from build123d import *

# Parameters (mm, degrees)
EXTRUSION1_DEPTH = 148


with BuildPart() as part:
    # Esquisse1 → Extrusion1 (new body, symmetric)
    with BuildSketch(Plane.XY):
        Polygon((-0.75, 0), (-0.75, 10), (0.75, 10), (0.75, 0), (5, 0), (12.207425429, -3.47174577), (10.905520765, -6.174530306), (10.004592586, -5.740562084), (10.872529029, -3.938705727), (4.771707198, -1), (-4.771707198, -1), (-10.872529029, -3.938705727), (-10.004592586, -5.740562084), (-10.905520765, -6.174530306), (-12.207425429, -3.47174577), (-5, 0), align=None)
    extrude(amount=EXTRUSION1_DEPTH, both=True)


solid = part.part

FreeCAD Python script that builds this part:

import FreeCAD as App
import Part
import Sketcher

V = App.Vector


def add_polygon(sketch, points):
    """Adds a closed chain of lines whose ends are joined by coincident constraints."""
    first, n = sketch.GeometryCount, len(points)
    for a, b in zip(points, points[1:] + points[:1]):
        sketch.addGeometry(Part.LineSegment(App.Vector(*a, 0), App.Vector(*b, 0)), False)
    for i in range(n):
        sketch.addConstraint(Sketcher.Constraint("Coincident", first + i, 2, first + (i + 1) % n, 1))

doc = App.newDocument("Part")
body = doc.addObject("PartDesign::Body", "Body")

# Sketch on XY plane
sketch1 = body.newObject("Sketcher::SketchObject", "Sketch")
sketch1.AttachmentSupport = (doc.getObject("XY_Plane"), [""])
sketch1.MapMode = "FlatFace"
add_polygon(sketch1, [(-0.8, 10), (-0.8, 0), (-5, 0), (-12.2, -3.5), (-10.9, -6.2), (-10, -5.7), (-10.9, -3.9), (-4.8, -1), (4.8, -1), (10.9, -3.9), (10, -5.7), (10.9, -6.2), (12.2, -3.5), (5, 0), (0.8, 0), (0.8, 10)])  # lines 0-15
sketch1.addConstraint(Sketcher.Constraint("Vertical", 0))
sketch1.addConstraint(Sketcher.Constraint("Horizontal", 1))
sketch1.addConstraint(Sketcher.Constraint("Horizontal", 7))
sketch1.addConstraint(Sketcher.Constraint("Horizontal", 13))
sketch1.addConstraint(Sketcher.Constraint("Vertical", 14))
sketch1.addConstraint(Sketcher.Constraint("Horizontal", 15))
sketch1.addConstraint(Sketcher.Constraint("Symmetric", 1, 2, 12, 2, -1, 1))
sketch1.addConstraint(Sketcher.Constraint("Symmetric", 5, 2, 8, 2, -2))
sketch1.addConstraint(Sketcher.Constraint("Symmetric", 4, 2, 9, 2, -2))
sketch1.addConstraint(Sketcher.Constraint("Symmetric", 3, 2, 10, 2, -2))
sketch1.addConstraint(Sketcher.Constraint("Symmetric", 2, 2, 11, 2, -2))
sketch1.addConstraint(Sketcher.Constraint("Symmetric", 0, 2, 13, 2, -2))
sketch1.addConstraint(Sketcher.Constraint("Perpendicular", 2, 3))
sketch1.addConstraint(Sketcher.Constraint("Perpendicular", 3, 4))
sketch1.addConstraint(Sketcher.Constraint("Perpendicular", 4, 5))
sketch1.addConstraint(Sketcher.Constraint("Perpendicular", 5, 6))
sketch1.addConstraint(Sketcher.Constraint("Perpendicular", 8, 9))
sketch1.addConstraint(Sketcher.Constraint("DistanceY", 0, 2, 0, 1, 10.0))
sketch1.addConstraint(Sketcher.Constraint("Distance", 2, 8.0))
sketch1.addConstraint(Sketcher.Constraint("Distance", 3, 3.0))
sketch1.addConstraint(Sketcher.Constraint("Distance", 4, 1.0))
sketch1.addConstraint(Sketcher.Constraint("Distance", 5, 2.0))
sketch1.addConstraint(Sketcher.Constraint("DistanceX", 15, 2, 15, 1, 1.5))
sketch1.addConstraint(Sketcher.Constraint("DistanceX", 1, 2, -1, 1, 5.0))
sketch1.addConstraint(Sketcher.Constraint("DistanceY", 6, 2, -1, 1, 1.0))
sketch1.addConstraint(Sketcher.Constraint("DistanceX", 4, 2, 7, 2, 14.7763))
pad1 = body.newObject("PartDesign::Pad", "Pad")
pad1.Profile = sketch1
pad1.Length = 296
pad1.Midplane = True

doc.recompute()
